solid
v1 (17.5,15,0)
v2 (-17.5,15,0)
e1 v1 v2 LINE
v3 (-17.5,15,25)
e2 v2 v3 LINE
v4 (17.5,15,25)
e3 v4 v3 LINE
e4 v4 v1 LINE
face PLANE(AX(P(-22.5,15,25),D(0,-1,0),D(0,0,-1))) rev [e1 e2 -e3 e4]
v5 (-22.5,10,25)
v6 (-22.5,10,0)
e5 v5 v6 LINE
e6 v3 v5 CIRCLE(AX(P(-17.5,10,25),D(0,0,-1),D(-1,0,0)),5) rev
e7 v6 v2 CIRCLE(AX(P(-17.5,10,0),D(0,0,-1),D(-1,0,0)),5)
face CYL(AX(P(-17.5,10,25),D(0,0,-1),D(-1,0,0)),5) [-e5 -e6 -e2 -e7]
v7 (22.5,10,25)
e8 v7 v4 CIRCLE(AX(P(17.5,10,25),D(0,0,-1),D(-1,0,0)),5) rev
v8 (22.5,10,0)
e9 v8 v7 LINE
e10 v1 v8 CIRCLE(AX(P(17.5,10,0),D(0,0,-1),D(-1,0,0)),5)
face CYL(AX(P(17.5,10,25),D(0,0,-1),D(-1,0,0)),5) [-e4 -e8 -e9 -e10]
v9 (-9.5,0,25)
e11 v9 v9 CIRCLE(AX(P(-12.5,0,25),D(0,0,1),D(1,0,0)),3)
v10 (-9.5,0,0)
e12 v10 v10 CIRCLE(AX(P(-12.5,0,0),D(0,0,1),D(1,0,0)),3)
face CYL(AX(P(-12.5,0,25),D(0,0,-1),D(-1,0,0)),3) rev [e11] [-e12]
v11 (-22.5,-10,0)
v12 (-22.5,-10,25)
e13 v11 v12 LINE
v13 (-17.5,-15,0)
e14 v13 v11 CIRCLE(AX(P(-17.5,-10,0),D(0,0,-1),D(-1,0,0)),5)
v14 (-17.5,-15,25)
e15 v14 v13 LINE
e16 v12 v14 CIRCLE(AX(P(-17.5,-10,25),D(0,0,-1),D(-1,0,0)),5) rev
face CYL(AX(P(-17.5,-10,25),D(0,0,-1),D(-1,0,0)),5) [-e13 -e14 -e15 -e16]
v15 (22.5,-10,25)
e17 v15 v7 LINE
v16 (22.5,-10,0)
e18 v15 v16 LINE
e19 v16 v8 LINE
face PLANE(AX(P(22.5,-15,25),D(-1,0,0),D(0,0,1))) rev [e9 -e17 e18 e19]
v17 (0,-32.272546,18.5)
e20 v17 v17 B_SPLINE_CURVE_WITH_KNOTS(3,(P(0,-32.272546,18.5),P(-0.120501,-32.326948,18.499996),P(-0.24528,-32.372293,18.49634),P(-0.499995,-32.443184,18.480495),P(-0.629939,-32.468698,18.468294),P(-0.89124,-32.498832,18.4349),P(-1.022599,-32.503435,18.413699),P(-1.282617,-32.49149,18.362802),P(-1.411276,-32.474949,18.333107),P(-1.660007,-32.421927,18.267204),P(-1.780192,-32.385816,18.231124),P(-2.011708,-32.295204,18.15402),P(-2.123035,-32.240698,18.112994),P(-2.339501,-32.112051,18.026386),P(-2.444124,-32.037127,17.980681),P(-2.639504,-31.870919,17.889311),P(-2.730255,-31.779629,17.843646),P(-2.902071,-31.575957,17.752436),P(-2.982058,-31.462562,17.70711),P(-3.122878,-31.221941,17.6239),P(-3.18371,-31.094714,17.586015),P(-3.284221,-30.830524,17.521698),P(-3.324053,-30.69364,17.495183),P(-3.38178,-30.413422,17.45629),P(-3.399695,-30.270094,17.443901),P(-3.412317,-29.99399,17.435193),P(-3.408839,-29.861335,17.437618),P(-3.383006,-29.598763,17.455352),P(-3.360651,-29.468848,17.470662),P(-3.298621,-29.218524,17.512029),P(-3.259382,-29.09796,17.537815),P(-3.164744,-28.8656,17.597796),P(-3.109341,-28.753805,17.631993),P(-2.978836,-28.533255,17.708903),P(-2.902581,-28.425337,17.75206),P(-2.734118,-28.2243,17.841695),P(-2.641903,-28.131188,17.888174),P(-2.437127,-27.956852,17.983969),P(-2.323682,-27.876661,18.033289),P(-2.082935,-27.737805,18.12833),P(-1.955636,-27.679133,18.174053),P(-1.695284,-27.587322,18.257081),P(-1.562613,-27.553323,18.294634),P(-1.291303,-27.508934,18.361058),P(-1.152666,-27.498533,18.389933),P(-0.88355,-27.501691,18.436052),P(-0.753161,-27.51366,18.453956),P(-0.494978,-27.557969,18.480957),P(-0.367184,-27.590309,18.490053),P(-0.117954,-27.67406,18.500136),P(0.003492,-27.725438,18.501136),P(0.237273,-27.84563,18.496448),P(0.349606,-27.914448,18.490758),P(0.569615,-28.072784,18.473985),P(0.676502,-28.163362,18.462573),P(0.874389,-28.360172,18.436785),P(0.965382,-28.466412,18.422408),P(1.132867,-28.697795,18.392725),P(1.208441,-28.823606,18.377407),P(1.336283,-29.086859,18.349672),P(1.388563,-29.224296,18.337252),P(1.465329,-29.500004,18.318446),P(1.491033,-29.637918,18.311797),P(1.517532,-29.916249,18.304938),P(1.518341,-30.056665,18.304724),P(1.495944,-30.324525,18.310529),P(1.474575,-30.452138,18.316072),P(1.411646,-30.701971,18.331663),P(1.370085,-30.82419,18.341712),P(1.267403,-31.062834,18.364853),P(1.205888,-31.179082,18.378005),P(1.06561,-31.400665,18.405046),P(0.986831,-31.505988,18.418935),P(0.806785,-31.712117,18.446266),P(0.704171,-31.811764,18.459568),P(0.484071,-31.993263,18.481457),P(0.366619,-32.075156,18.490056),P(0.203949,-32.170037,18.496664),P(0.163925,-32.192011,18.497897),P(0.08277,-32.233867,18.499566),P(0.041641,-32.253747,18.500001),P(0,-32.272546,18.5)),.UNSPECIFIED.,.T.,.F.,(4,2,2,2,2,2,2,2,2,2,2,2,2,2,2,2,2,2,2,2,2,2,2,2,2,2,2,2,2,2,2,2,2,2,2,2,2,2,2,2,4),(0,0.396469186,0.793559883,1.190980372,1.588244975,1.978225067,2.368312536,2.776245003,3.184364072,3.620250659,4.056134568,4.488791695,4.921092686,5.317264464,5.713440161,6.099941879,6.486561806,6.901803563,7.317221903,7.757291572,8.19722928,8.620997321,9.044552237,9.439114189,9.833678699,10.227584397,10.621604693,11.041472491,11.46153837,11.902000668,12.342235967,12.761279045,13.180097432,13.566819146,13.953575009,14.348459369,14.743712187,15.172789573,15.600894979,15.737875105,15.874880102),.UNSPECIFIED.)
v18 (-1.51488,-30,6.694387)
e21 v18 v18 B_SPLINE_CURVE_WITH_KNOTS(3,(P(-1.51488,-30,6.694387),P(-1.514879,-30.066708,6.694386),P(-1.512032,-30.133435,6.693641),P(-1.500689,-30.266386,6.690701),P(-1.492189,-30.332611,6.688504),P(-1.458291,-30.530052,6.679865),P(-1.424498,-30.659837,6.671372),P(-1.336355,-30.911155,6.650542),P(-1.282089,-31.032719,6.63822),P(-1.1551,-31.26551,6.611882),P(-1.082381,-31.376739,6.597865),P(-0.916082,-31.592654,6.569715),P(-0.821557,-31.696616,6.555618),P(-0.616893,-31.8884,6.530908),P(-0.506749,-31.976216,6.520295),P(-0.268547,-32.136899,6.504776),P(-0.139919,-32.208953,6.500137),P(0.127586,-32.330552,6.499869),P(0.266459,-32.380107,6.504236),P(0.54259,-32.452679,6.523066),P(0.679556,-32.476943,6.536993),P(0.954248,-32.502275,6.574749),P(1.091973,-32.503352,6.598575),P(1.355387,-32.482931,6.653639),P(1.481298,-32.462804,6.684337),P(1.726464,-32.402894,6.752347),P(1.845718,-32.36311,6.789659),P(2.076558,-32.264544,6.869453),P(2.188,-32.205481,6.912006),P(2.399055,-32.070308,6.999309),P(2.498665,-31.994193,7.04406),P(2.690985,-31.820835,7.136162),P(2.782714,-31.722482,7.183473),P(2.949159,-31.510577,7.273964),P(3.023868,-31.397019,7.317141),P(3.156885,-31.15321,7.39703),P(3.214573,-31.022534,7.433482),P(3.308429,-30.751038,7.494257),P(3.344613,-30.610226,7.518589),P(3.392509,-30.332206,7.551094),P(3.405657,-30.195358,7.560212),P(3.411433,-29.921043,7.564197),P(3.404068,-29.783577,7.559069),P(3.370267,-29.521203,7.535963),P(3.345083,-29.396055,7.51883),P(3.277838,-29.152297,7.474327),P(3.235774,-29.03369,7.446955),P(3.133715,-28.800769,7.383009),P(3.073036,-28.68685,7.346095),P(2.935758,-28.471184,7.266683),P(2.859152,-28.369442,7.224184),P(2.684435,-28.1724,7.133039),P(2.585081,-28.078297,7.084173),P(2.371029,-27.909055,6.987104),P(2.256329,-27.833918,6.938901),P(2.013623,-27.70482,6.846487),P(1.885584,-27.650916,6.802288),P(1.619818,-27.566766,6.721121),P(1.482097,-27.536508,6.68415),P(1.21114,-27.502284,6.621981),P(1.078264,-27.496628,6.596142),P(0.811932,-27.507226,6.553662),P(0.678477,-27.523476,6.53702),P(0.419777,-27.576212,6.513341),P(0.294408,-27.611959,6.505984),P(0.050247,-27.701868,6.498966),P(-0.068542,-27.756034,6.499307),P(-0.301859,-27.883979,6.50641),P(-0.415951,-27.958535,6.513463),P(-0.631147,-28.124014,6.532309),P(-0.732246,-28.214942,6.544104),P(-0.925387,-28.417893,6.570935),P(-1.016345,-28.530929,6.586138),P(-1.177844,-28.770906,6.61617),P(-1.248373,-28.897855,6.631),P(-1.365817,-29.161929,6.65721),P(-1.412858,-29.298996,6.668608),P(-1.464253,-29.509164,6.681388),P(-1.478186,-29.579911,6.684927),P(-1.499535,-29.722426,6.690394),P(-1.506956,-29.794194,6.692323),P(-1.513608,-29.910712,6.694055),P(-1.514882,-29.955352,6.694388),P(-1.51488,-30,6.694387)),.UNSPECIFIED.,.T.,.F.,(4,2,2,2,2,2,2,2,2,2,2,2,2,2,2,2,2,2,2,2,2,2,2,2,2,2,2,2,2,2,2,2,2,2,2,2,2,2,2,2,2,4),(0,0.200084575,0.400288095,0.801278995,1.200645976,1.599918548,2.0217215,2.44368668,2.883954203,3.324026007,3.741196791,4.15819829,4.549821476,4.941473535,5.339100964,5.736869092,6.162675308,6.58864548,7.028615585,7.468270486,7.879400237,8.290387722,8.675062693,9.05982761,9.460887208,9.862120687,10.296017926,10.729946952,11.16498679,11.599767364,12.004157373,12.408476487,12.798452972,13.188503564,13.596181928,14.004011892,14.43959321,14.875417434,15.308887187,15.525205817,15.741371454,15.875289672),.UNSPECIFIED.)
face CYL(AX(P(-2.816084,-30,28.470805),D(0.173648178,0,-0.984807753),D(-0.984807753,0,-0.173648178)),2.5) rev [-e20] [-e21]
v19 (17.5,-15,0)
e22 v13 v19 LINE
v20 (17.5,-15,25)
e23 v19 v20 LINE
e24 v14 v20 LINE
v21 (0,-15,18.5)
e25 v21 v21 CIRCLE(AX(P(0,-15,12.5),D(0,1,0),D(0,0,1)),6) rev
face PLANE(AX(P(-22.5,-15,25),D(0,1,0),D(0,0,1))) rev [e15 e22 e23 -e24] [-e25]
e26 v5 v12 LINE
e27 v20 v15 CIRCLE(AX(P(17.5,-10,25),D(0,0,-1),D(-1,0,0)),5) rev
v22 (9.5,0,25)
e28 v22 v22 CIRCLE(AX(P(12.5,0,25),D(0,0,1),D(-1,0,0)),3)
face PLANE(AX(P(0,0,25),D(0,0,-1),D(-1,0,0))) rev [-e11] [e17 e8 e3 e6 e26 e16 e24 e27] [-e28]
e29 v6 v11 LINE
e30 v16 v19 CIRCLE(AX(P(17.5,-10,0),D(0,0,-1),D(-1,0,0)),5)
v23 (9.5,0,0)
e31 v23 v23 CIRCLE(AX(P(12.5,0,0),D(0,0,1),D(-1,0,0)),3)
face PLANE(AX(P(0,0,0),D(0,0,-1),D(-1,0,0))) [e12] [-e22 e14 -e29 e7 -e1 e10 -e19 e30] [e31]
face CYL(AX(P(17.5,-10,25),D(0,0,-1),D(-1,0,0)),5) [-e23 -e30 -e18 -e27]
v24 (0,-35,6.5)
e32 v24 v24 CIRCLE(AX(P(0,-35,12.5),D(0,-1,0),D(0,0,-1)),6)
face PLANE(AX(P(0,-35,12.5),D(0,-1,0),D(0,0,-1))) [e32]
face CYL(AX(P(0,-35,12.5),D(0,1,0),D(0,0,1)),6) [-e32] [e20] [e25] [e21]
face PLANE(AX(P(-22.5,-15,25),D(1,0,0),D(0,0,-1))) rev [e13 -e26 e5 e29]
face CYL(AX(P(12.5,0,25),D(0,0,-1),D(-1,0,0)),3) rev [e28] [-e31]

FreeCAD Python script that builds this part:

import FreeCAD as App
import Part
import Sketcher


def edges_at(feature, points):
    """Names of the edges that pass closest to the given points."""
    edges = feature.Shape.Edges
    near = lambda p: min(range(len(edges)), key=lambda i: edges[i].distToShape(Part.Vertex(*p))[0])
    return sorted({f"Edge{near(p) + 1}" for p in points})


def add_polygon(sketch, points):
    """Adds a closed chain of lines whose ends are joined by coincident constraints."""
    first, n = sketch.GeometryCount, len(points)
    for a, b in zip(points, points[1:] + points[:1]):
        sketch.addGeometry(Part.LineSegment(App.Vector(*a, 0), App.Vector(*b, 0)), False)
    for i in range(n):
        sketch.addConstraint(Sketcher.Constraint("Coincident", first + i, 2, first + (i + 1) % n, 1))

doc = App.newDocument("Part")
params = doc.addObject("Spreadsheet::Sheet", "Params")
for row, (alias, value) in enumerate([
    ("sketch1_diameter", "6 mm"),
    ("sketch1_width", "45 mm"),
    ("sketch1_height", "30 mm"),
    ("pad1_length", "25 mm"),
    ("fillet_radius", "5 mm"),
    ("sketch2_diameter", "12 mm"),
    ("pad2_length", "20 mm"),
    ("sketch3_diameter", "5 mm"),
], start=1):
    params.set(f"A{row}", alias)
    params.set(f"B{row}", "=" + value)
    params.setAlias(f"B{row}", alias)

body = doc.addObject("PartDesign::Body", "Body")

sketch1 = body.newObject("Sketcher::SketchObject", "Sketch")
sketch1.AttachmentSupport = (doc.getObject("XY_Plane"), [""])
sketch1.MapMode = "FlatFace"
add_polygon(sketch1, [(-22.5, 15), (-22.5, -15), (22.5, -15), (22.5, 15)])
sketch1.addGeometry(Part.Circle(App.Vector(-12.5, 0, 0), App.Vector(0, 0, 1), 3), False)
sketch1.addGeometry(Part.Circle(App.Vector(12.5, 0, 0), App.Vector(0, 0, 1), 3), False)
sketch1.addConstraint(Sketcher.Constraint("Vertical", 0))
sketch1.addConstraint(Sketcher.Constraint("Horizontal", 1))
sketch1.addConstraint(Sketcher.Constraint("Vertical", 2))
sketch1.addConstraint(Sketcher.Constraint("Horizontal", 3))
sketch1.addConstraint(Sketcher.Constraint("Equal", 4, 5))
sketch1.addConstraint(Sketcher.Constraint("Symmetric", 4, 3, 5, 3, -1, 1))
sketch1.addConstraint(Sketcher.Constraint("Symmetric", 0, 2, 2, 2, -1, 1))
sketch1.addConstraint(Sketcher.Constraint("PointOnObject", 4, 3, -1))
sketch1.addConstraint(Sketcher.Constraint("Diameter", 4, 6.0))
sketch1.addConstraint(Sketcher.Constraint("DistanceX", 1, 1, 1, 2, 45.0))
sketch1.addConstraint(Sketcher.Constraint("DistanceY", 0, 2, 0, 1, 30.0))
sketch1.addConstraint(Sketcher.Constraint("DistanceX", 4, 3, 5, 3, 25.0))
sketch1.setExpression("Constraints[12]", "Params.sketch1_diameter")
sketch1.setExpression("Constraints[13]", "Params.sketch1_width")
sketch1.setExpression("Constraints[14]", "Params.sketch1_height")
pad1 = body.newObject("PartDesign::Pad", "Pad")
pad1.Profile = sketch1
pad1.setExpression("Length", "Params.pad1_length")
doc.recompute()

fillet = body.newObject("PartDesign::Fillet", "Fillet")
fillet.Base = (pad1, edges_at(pad1, [
    (22.5, -15, 12.5),
    (-22.5, -15, 12.5),
    (-22.5, 15, 12.5),
    (22.5, 15, 12.5),
]))
fillet.setExpression("Radius", "Params.fillet_radius")

sketch2 = body.newObject("Sketcher::SketchObject", "Sketch001")
sketch2.AttachmentSupport = (doc.getObject("XZ_Plane"), [""])
sketch2.MapMode = "FlatFace"
sketch2.AttachmentOffset = App.Placement(App.Vector(0, 0, 15), App.Rotation())
sketch2.addGeometry(Part.Circle(App.Vector(0, 12, 0), App.Vector(0, 0, 1), 6), False)
sketch2.addConstraint(Sketcher.Constraint("PointOnObject", 0, 3, -2))
sketch2.addConstraint(Sketcher.Constraint("Diameter", 0, 12.0))
sketch2.addConstraint(Sketcher.Constraint("DistanceY", -1, 1, 0, 3, 12.5))
sketch2.setExpression("Constraints[1]", "Params.sketch2_diameter")
pad2 = body.newObject("PartDesign::Pad", "Pad001")
pad2.Profile = sketch2
pad2.setExpression("Length", "Params.pad2_length")

sketch3 = body.newObject("Sketcher::SketchObject", "Sketch002")
sketch3.Placement = App.Placement(App.Vector(-2.137626, 0, 12.123079), App.Rotation(App.Vector(-0.984807753, 0, -0.173648178), App.Vector(0, 1, 0), App.Vector(0.173648178, 0, -0.984807753), "ZXY"))
sketch3.addGeometry(Part.Circle(App.Vector(-2.2, -30, 0), App.Vector(0, 0, 1), 2.5), False)
sketch3.addConstraint(Sketcher.Constraint("Diameter", 0, 5.0))
sketch3.addConstraint(Sketcher.Constraint("DistanceY", 0, 3, -1, 1, 30.0))
sketch3.addConstraint(Sketcher.Constraint("DistanceX", 0, 3, -1, 1, 2.170602))
sketch3.setExpression("Constraints[0]", "Params.sketch3_diameter")
pocket1 = body.newObject("PartDesign::Pocket", "Pocket")
pocket1.Profile = sketch3
pocket1.Type = "ThroughAll"
pocket1.Midplane = True

doc.recompute()
